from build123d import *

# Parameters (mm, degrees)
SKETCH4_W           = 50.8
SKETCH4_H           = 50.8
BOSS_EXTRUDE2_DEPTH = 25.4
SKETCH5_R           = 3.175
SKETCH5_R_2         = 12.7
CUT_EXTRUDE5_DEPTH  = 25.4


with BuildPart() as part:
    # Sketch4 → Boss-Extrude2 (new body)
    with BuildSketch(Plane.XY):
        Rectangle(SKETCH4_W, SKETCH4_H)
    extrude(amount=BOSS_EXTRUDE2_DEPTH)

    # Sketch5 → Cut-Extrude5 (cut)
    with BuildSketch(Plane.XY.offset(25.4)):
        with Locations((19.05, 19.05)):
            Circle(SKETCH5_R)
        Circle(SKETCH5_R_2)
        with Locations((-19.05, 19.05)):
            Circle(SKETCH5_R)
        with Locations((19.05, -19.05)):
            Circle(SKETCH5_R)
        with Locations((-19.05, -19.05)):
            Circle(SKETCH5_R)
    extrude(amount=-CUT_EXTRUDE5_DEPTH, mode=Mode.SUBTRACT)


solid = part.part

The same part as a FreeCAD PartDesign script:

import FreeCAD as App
import Part
import Sketcher
Q = App.Units.Quantity


def add_polygon(sketch, points):
    """Adds a closed chain of lines whose ends are joined by coincident constraints."""
    first, n = sketch.GeometryCount, len(points)
    for a, b in zip(points, points[1:] + points[:1]):
        sketch.addGeometry(Part.LineSegment(App.Vector(*a, 0), App.Vector(*b, 0)), False)
    for i in range(n):
        sketch.addConstraint(Sketcher.Constraint("Coincident", first + i, 2, first + (i + 1) % n, 1))

doc = App.newDocument("Part")
body = doc.addObject("PartDesign::Body", "Body")

# Sketch on XY plane
sketch1 = body.newObject("Sketcher::SketchObject", "Sketch")
sketch1.AttachmentSupport = (doc.getObject("XY_Plane"), [""])
sketch1.MapMode = "FlatFace"
add_polygon(sketch1, [(-25, 25), (-25, -25), (25, -25), (25, 25)])  # lines 0-3
sketch1.addConstraint(Sketcher.Constraint("Vertical", 0))
sketch1.addConstraint(Sketcher.Constraint("Horizontal", 1))
sketch1.addConstraint(Sketcher.Constraint("Vertical", 2))
sketch1.addConstraint(Sketcher.Constraint("Horizontal", 3))
sketch1.addConstraint(Sketcher.Constraint("Symmetric", 0, 2, 2, 2, -1, 1))
sketch1.addConstraint(Sketcher.Constraint("Equal", 3, 0))
sketch1.addConstraint(Sketcher.Constraint("DistanceX", 1, 1, 1, 2, Q("2 in")))
pad1 = body.newObject("PartDesign::Pad", "Pad")
pad1.Profile = sketch1
pad1.Length = Q("1 in")

# Sketch on XY plane
sketch2 = body.newObject("Sketcher::SketchObject", "Sketch001")
sketch2.AttachmentSupport = (doc.getObject("XY_Plane"), [""])
sketch2.MapMode = "FlatFace"
sketch2.AttachmentOffset = App.Placement(App.Vector(0, 0, 1 * 25.4), App.Rotation())
sketch2.addGeometry(Part.Circle(App.Vector(19.1, 19.1, 0), App.Vector(0, 0, 1), 3.2), False)
sketch2.addGeometry(Part.Circle(App.Vector(0, 0, 0), App.Vector(0, 0, 1), 12.7), False)
sketch2.addGeometry(Part.Circle(App.Vector(-19.1, 19.1, 0), App.Vector(0, 0, 1), 3.2), False)
sketch2.addGeometry(Part.Circle(App.Vector(19.1, -19.1, 0), App.Vector(0, 0, 1), 3.2), False)
sketch2.addGeometry(Part.Circle(App.Vector(-19.1, -19.1, 0), App.Vector(0, 0, 1), 3.2), False)
sketch2.addConstraint(Sketcher.Constraint("Coincident", 1, 3, -1, 1))
sketch2.addConstraint(Sketcher.Constraint("Equal", 0, 2))
sketch2.addConstraint(Sketcher.Constraint("Equal", 2, 3))
sketch2.addConstraint(Sketcher.Constraint("Equal", 3, 4))
sketch2.addConstraint(Sketcher.Constraint("Symmetric", 2, 3, 3, 3, -1, 1))
sketch2.addConstraint(Sketcher.Constraint("Symmetric", 0, 3, 4, 3, -1, 1))
sketch2.addConstraint(Sketcher.Constraint("Symmetric", 0, 3, 2, 3, -2))
sketch2.addConstraint(Sketcher.Constraint("Diameter", 1, Q("1 in")))
sketch2.addConstraint(Sketcher.Constraint("Diameter", 0, Q("0.25 in")))
sketch2.addConstraint(Sketcher.Constraint("DistanceX", 2, 3, 0, 3, Q("1.5 in")))
sketch2.addConstraint(Sketcher.Constraint("DistanceY", 3, 3, 0, 3, Q("1.5 in")))
pocket1 = body.newObject("PartDesign::Pocket", "Pocket")
pocket1.Profile = sketch2
pocket1.Length = Q("1 in")

doc.recompute()
